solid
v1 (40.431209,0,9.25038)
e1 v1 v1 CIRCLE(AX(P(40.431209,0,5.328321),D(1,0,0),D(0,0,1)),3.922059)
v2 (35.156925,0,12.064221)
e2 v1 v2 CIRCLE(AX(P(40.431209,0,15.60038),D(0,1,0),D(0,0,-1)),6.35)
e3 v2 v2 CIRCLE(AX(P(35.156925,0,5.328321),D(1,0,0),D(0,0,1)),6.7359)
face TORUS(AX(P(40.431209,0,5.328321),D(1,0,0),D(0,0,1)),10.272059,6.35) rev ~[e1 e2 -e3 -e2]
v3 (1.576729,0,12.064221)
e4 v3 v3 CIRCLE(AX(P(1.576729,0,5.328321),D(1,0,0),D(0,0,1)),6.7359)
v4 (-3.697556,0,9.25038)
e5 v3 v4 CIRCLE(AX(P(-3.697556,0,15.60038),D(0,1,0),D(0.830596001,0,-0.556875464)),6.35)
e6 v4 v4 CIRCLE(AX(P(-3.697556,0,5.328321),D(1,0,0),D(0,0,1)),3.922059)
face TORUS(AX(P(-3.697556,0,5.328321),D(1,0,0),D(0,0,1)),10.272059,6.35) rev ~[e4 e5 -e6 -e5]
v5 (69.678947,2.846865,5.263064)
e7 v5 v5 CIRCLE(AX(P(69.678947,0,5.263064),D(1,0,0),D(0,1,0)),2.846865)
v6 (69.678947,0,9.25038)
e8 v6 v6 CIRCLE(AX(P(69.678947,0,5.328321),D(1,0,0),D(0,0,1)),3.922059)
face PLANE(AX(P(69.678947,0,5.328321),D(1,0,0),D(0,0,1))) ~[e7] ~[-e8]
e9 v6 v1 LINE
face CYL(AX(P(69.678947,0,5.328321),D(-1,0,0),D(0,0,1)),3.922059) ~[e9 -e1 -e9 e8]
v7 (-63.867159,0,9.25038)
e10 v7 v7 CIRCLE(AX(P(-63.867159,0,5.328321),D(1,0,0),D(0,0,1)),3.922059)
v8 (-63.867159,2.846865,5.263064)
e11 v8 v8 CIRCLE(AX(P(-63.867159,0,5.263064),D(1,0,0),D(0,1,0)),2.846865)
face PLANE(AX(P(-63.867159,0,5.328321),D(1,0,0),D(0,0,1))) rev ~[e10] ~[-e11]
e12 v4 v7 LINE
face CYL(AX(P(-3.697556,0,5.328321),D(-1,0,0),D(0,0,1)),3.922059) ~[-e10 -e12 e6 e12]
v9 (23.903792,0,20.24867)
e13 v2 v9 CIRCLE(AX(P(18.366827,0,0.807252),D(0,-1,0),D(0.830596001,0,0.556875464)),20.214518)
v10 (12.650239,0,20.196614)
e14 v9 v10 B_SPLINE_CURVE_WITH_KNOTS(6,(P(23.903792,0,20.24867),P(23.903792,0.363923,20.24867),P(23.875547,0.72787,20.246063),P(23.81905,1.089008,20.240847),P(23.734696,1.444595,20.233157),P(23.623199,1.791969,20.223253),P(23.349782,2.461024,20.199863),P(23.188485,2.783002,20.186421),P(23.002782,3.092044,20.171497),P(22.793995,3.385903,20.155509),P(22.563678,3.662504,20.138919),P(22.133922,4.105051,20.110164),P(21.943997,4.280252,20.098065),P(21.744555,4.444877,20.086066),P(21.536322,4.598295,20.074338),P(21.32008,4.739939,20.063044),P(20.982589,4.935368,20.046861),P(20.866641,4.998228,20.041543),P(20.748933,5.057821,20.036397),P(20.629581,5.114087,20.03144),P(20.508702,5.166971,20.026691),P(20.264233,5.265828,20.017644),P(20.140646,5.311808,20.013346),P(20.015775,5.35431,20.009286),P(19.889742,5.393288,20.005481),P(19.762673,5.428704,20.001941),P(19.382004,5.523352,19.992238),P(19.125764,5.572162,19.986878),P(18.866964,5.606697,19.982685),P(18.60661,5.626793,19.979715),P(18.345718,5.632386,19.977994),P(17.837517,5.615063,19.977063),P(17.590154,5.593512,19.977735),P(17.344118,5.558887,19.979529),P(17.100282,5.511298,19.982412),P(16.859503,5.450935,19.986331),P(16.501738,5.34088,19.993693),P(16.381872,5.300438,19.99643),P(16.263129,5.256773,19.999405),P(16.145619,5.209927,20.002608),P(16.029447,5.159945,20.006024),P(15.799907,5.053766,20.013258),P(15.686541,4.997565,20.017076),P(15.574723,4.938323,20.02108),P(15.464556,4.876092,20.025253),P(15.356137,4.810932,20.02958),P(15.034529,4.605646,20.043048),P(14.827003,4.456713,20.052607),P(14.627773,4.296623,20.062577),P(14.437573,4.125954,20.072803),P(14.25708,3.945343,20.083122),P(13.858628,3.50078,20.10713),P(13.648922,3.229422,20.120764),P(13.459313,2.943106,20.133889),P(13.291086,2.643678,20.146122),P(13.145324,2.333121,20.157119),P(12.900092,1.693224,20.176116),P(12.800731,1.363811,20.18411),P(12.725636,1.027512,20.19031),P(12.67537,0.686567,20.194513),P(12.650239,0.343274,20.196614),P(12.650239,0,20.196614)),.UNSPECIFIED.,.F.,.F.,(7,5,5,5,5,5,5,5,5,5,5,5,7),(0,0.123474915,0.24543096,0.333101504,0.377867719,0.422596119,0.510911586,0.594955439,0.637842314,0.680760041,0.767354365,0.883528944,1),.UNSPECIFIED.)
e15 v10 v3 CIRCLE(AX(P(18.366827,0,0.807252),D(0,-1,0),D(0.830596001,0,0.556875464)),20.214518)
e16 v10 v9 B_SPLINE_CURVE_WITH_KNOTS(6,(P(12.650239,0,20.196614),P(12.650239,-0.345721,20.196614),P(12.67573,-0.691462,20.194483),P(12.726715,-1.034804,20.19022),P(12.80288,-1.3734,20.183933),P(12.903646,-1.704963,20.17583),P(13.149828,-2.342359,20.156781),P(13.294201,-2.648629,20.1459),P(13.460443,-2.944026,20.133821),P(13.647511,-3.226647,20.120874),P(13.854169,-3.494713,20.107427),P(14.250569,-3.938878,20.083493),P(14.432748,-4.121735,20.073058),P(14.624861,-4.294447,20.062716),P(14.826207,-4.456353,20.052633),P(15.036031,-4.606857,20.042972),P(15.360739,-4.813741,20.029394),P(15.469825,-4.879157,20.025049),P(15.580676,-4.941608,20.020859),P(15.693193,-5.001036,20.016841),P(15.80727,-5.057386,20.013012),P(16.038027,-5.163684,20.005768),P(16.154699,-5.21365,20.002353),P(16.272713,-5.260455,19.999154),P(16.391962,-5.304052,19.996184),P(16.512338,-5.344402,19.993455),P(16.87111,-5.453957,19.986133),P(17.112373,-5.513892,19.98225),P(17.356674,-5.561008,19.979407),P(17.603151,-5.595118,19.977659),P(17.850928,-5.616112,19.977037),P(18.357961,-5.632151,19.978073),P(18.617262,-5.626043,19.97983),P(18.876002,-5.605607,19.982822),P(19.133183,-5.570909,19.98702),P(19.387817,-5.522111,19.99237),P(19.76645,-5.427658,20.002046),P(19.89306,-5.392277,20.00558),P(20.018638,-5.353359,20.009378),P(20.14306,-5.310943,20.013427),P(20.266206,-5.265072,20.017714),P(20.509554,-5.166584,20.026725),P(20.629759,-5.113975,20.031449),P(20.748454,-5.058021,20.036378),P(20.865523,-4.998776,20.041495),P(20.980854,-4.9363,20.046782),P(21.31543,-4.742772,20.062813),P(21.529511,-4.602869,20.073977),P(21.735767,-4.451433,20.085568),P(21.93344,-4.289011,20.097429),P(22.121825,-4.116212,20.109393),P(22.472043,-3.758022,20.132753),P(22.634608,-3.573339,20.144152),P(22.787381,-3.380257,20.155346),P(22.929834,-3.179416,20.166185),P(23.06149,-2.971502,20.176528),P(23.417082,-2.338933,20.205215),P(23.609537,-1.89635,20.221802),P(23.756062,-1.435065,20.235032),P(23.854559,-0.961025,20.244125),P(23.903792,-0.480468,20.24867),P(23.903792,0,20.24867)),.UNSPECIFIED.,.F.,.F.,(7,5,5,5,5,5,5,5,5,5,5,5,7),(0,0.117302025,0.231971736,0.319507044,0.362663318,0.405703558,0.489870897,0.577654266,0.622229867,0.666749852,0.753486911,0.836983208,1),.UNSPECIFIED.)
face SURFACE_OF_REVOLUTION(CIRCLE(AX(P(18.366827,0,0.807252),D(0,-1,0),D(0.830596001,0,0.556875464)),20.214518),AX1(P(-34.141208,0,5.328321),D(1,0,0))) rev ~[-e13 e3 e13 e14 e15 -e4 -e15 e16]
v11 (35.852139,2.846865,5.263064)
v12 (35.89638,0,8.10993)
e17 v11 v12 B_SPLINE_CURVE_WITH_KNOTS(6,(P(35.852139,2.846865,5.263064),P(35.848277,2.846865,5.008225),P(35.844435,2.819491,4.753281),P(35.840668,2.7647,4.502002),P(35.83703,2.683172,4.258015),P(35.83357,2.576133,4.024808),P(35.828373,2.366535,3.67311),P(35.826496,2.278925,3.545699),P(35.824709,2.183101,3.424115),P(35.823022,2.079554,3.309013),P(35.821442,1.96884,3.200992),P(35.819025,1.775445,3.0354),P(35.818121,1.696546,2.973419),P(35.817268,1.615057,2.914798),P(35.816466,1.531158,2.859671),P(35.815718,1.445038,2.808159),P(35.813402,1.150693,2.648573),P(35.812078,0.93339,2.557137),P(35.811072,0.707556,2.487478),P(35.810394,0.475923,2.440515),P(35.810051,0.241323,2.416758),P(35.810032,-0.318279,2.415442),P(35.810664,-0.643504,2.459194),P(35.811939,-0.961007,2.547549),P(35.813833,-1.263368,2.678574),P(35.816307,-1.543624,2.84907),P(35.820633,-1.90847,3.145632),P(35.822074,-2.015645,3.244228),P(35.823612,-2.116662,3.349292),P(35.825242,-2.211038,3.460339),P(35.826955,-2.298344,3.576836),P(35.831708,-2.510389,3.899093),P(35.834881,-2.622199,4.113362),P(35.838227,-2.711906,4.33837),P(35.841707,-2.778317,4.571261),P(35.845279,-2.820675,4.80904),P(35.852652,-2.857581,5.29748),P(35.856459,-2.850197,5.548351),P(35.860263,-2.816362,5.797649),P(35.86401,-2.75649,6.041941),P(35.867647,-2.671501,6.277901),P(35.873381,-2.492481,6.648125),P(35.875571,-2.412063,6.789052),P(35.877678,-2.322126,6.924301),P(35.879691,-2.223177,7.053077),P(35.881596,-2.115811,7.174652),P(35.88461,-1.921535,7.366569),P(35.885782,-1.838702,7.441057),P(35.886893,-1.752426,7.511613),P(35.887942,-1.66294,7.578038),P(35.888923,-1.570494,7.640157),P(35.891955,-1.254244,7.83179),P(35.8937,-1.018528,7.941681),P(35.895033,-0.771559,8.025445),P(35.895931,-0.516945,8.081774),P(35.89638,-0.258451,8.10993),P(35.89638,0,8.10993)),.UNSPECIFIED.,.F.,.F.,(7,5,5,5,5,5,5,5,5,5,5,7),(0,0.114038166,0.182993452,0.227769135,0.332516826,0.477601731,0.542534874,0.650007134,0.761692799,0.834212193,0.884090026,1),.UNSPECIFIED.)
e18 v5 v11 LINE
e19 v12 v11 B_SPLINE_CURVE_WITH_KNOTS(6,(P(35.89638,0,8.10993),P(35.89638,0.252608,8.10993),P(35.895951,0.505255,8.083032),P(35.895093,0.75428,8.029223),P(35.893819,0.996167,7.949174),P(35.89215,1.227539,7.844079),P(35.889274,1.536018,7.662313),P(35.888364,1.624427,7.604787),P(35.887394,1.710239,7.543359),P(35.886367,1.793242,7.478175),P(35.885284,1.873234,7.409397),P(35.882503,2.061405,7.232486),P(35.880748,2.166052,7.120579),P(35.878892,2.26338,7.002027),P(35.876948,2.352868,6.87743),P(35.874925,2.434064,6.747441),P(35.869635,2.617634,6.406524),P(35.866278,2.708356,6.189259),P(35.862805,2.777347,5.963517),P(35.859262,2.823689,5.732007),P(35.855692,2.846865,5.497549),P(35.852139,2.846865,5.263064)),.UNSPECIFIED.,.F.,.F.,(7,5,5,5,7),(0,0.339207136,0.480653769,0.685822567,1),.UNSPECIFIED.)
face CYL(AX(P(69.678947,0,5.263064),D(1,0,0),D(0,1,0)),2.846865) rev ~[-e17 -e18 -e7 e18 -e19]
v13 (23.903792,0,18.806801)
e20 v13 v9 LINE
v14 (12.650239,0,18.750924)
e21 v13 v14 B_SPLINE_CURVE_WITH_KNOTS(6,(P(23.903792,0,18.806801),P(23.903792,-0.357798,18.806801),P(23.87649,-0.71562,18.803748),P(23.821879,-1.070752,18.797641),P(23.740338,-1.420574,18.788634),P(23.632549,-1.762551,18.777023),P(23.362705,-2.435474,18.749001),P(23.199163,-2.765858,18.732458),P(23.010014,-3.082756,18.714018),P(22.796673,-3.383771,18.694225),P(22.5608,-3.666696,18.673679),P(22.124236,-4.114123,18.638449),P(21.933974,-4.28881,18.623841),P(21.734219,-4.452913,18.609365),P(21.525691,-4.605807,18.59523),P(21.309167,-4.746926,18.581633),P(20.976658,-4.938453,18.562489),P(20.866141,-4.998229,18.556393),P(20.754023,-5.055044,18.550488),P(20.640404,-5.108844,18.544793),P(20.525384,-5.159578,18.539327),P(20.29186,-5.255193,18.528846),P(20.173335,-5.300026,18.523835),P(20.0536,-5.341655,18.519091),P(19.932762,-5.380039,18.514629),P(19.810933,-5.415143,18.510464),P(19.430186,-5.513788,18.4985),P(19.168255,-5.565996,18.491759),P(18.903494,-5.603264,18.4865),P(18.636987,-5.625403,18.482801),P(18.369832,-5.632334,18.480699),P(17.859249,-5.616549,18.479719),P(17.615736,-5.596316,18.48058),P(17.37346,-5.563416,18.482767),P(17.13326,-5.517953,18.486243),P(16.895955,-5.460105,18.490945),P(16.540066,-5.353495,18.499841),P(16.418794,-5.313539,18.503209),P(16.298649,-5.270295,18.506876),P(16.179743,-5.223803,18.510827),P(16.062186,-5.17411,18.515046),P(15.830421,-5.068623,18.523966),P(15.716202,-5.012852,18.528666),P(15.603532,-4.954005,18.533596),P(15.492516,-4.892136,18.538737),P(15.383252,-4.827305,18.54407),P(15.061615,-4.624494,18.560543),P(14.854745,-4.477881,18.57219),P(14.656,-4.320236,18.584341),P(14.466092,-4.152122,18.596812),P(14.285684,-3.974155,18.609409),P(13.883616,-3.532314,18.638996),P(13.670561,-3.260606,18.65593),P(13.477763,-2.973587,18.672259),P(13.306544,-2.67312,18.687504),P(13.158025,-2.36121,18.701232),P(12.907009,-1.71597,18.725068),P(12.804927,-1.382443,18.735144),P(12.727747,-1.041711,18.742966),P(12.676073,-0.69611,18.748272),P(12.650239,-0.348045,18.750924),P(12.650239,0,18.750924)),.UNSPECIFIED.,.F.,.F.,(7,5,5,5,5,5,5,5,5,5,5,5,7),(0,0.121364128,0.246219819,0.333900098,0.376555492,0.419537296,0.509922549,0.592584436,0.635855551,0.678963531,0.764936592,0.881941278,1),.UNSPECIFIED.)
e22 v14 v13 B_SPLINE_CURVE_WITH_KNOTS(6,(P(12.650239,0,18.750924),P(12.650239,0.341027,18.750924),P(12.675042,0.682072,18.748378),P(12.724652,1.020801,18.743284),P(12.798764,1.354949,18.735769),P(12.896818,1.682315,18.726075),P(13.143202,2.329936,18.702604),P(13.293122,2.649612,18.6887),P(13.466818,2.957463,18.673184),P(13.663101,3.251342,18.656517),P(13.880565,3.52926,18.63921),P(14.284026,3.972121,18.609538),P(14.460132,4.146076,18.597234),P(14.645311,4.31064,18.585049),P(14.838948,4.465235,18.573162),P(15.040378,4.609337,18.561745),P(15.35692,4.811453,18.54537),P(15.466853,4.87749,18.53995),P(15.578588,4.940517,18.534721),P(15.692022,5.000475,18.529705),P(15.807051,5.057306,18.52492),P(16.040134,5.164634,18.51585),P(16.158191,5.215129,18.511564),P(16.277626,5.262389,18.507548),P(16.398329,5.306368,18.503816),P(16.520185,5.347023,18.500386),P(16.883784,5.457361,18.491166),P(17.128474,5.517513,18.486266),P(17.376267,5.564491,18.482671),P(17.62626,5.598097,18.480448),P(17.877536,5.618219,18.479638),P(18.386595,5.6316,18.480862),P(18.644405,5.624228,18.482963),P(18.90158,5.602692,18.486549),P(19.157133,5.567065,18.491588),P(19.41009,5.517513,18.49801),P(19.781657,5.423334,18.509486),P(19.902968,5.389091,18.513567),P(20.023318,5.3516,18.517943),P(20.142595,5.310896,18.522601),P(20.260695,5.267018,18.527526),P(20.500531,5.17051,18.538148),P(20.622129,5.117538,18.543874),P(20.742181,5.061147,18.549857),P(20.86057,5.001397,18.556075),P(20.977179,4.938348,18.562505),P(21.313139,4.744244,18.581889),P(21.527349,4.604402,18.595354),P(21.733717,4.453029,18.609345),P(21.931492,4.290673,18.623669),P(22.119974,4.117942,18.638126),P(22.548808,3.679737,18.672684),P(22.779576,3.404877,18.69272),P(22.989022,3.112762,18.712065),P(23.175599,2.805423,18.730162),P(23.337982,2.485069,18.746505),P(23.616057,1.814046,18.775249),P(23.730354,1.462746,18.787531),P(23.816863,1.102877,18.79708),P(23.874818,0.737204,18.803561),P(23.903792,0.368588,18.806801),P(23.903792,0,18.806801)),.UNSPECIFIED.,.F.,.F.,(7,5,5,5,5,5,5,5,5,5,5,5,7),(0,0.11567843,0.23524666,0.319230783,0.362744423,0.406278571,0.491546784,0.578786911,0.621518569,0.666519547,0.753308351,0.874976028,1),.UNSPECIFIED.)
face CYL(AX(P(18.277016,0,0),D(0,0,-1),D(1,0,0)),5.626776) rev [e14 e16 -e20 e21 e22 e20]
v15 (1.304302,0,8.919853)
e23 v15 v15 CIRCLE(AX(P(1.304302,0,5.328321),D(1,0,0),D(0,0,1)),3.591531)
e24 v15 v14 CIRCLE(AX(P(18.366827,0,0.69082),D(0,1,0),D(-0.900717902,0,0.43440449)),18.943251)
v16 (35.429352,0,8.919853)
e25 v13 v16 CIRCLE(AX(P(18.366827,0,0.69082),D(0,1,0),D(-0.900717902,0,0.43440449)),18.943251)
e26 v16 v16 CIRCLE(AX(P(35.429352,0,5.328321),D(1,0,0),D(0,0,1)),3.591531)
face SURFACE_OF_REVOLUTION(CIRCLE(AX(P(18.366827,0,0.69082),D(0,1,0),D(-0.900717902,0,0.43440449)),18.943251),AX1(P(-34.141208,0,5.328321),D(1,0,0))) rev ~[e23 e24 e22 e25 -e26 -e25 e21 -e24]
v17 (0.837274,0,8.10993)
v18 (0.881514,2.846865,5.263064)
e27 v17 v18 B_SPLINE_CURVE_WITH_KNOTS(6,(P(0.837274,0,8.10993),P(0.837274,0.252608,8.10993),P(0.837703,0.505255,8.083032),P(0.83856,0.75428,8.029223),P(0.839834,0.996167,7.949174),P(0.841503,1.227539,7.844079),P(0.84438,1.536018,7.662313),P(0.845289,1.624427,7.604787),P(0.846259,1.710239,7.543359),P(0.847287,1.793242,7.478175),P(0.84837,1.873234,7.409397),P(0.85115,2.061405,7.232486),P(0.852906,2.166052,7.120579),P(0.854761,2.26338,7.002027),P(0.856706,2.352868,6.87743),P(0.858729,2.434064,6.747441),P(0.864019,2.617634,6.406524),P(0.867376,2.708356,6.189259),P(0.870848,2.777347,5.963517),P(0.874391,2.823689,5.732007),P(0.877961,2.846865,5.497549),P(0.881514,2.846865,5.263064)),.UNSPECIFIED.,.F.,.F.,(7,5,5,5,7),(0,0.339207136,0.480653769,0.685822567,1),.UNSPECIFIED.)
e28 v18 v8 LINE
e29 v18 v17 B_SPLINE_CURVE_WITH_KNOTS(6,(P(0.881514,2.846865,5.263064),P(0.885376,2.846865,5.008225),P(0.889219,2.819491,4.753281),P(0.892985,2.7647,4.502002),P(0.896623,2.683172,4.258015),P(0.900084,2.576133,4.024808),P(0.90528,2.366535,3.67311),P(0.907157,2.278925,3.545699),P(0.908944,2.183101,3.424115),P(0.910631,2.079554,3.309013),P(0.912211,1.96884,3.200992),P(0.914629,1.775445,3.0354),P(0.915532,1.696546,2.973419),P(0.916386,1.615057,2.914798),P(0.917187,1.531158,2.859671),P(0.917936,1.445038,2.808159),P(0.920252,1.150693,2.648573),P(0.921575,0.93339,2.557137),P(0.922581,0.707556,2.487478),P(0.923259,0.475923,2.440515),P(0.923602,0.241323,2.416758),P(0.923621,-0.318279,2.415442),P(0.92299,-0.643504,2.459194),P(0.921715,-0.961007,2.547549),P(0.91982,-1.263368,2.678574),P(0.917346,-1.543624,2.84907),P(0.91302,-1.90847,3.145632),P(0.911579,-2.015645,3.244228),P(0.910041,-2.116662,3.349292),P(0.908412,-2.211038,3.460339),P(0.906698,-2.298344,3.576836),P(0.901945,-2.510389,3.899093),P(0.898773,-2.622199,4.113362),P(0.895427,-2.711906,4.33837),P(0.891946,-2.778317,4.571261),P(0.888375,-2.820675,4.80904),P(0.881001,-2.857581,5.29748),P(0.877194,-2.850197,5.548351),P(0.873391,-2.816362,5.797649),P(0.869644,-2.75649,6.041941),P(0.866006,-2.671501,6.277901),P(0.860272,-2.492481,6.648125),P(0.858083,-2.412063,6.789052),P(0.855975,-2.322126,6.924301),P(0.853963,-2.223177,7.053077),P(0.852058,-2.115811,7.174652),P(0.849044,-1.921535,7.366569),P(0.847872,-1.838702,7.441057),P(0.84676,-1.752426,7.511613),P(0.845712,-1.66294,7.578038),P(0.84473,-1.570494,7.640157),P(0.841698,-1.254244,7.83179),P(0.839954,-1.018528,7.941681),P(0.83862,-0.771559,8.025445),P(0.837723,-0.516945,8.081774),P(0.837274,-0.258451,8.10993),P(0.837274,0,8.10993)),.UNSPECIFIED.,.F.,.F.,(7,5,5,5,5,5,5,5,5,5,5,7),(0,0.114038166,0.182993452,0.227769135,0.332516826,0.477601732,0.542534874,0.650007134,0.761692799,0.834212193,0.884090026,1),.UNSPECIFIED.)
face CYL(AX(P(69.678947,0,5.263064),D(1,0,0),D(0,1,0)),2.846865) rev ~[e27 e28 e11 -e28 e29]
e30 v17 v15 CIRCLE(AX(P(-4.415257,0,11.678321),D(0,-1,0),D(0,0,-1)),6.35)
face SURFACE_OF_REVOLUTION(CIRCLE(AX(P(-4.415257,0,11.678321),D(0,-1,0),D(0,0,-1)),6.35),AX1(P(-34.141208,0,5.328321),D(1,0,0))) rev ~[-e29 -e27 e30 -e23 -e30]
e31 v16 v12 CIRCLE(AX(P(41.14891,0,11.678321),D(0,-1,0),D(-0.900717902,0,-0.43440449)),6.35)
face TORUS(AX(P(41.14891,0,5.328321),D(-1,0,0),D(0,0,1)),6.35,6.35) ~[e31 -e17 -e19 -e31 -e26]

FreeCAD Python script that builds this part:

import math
import FreeCAD as App
import Part
import Sketcher

V = App.Vector
Q = App.Units.Quantity

doc = App.newDocument("Part")
body = doc.addObject("PartDesign::Body", "Body")

# Sketch on XZ plane
sketch1 = body.newObject("Sketcher::SketchObject", "Sketch")
sketch1.AttachmentSupport = (doc.getObject("XZ_Plane"), [""])
sketch1.MapMode = "FlatFace"
sketch1.addGeometry([
    Part.LineSegment(V(-3.7, 9.3, 0), V(-63.9, 9.3, 0)),  # 0
    Part.LineSegment(V(-63.9, 9.3, 0), V(-63.9, 5.3, 0)),  # 1
    Part.LineSegment(V(-63.9, 5.3, 0), V(-4.4, 5.3, 0)),  # 2
    Part.ArcOfCircle(Part.Circle(V(-4.4, 11.7, 0), V(0, 0, 1), 6.3), math.radians(-90), math.radians(-26)),  # 3
    Part.ArcOfCircle(Part.Circle(V(18.4, 0.7, 0), V(0, 0, 1), 18.9), math.radians(26), math.radians(154)),  # 4
    Part.ArcOfCircle(Part.Circle(V(41.1, 11.7, 0), V(0, 0, 1), 6.3), math.radians(-154), math.radians(-90)),  # 5
    Part.LineSegment(V(41.1, 5.3, 0), V(69.7, 5.3, 0)),  # 6
    Part.LineSegment(V(69.7, 5.3, 0), V(69.7, 9.3, 0)),  # 7
    Part.LineSegment(V(69.7, 9.3, 0), V(40.4, 9.3, 0)),  # 8
    Part.ArcOfCircle(Part.Circle(V(40.4, 15.6, 0), V(0, 0, 1), 6.3), math.radians(-146), math.radians(-90)),  # 9
    Part.ArcOfCircle(Part.Circle(V(18.4, 0.8, 0), V(0, 0, 1), 20.2), math.radians(34), math.radians(146)),  # 10
    Part.ArcOfCircle(Part.Circle(V(-3.7, 15.6, 0), V(0, 0, 1), 6.3), math.radians(-90), math.radians(-34)),  # 11
], False)
sketch1.addGeometry(Part.LineSegment(V(-63.9, 5.3, 0), V(69.7, 5.3, 0)), True)  # axis
sketch1.addConstraint([
    Sketcher.Constraint("Coincident", 0, 2, 1, 1),
    Sketcher.Constraint("Coincident", 1, 2, 2, 1),
    Sketcher.Constraint("Tangent", 2, 2, 3, 1),
    Sketcher.Constraint("Tangent", 3, 2, 4, 2),
    Sketcher.Constraint("Tangent", 4, 1, 5, 1),
    Sketcher.Constraint("Tangent", 5, 2, 6, 1),
    Sketcher.Constraint("Coincident", 6, 2, 7, 1),
    Sketcher.Constraint("Coincident", 7, 2, 8, 1),
    Sketcher.Constraint("Tangent", 8, 2, 9, 2),
    Sketcher.Constraint("Tangent", 9, 1, 10, 1),
    Sketcher.Constraint("Tangent", 10, 2, 11, 2),
    Sketcher.Constraint("Tangent", 11, 1, 0, 1),
    Sketcher.Constraint("Horizontal", 0),
    Sketcher.Constraint("Vertical", 1),
    Sketcher.Constraint("Horizontal", 2),
    Sketcher.Constraint("Horizontal", 6),
    Sketcher.Constraint("Vertical", 7),
    Sketcher.Constraint("Horizontal", 8),
    Sketcher.Constraint("Horizontal", 12),
    Sketcher.Constraint("Coincident", 12, 1, 1, 2),
    Sketcher.Constraint("Coincident", 12, 2, 6, 2),
    Sketcher.Constraint("Equal", 3, 5),
    Sketcher.Constraint("Equal", 5, 9),
    Sketcher.Constraint("Equal", 9, 11),
    Sketcher.Constraint("Horizontal", 9, 3, 11, 3),
    Sketcher.Constraint("Vertical", 4, 3, 10, 3),
    Sketcher.Constraint("Radius", 3, Q("0.25 in")),
    Sketcher.Constraint("Radius", 4, Q("18.943251 mm")),
    Sketcher.Constraint("Radius", 10, Q("20.214518 mm")),
    Sketcher.Constraint("DistanceX", 8, 2, 8, 1, Q("29.247738 mm")),
    Sketcher.Constraint("DistanceY", 1, 2, 1, 1, Q("3.922059 mm")),
    Sketcher.Constraint("DistanceX", -1, 1, 3, 2, Q("1.304302 mm")),
    Sketcher.Constraint("DistanceY", 4, 3, 3, 3, Q("10.987502 mm")),
    Sketcher.Constraint("DistanceX", 9, 3, 5, 3, Q("0.717701 mm")),
    Sketcher.Constraint("DistanceX", 0, 2, 0, 1, Q("60.169603 mm")),
    Sketcher.Constraint("DistanceY", -1, 1, 3, 3, Q("11.678321 mm")),
])
revolution = body.newObject("PartDesign::Revolution", "Revolution")
revolution.Profile = sketch1
revolution.ReferenceAxis = (sketch1, ["Axis0"])
revolution.Angle = 360

# Sketch on YZ plane
sketch2 = body.newObject("Sketcher::SketchObject", "Sketch001")
sketch2.AttachmentSupport = (doc.getObject("YZ_Plane"), [""])
sketch2.MapMode = "FlatFace"
sketch2.AttachmentOffset = App.Placement(V(0, 0, 69.678947), App.Rotation())
sketch2.addGeometry(Part.Circle(V(0, 5.3, 0), V(0, 0, 1), 2.8), False)
sketch2.addConstraint([
    Sketcher.Constraint("PointOnObject", 0, 3, -2),
    Sketcher.Constraint("Diameter", 0, Q("5.693731 mm")),
    Sketcher.Constraint("DistanceY", -1, 1, 0, 3, Q("5.263064 mm")),
])
pocket1 = body.newObject("PartDesign::Pocket", "Pocket")
pocket1.Profile = sketch2
pocket1.Type = "ThroughAll"

# Sketch on XY plane
sketch3 = body.newObject("Sketcher::SketchObject", "Sketch002")
sketch3.AttachmentSupport = (doc.getObject("XY_Plane"), [""])
sketch3.MapMode = "FlatFace"
sketch3.addGeometry(Part.Circle(V(18, 0, 0), V(0, 0, 1), 6), False)
sketch3.addConstraint([
    Sketcher.Constraint("PointOnObject", 0, 3, -1),
    Sketcher.Constraint("Diameter", 0, Q("11.253553 mm")),
    Sketcher.Constraint("DistanceX", -1, 1, 0, 3, Q("18.277016 mm")),
])
pocket2 = body.newObject("PartDesign::Pocket", "Pocket001")
pocket2.Profile = sketch3
pocket2.Length = Q("1.38 in")
pocket2.Reversed = True

doc.recompute()
